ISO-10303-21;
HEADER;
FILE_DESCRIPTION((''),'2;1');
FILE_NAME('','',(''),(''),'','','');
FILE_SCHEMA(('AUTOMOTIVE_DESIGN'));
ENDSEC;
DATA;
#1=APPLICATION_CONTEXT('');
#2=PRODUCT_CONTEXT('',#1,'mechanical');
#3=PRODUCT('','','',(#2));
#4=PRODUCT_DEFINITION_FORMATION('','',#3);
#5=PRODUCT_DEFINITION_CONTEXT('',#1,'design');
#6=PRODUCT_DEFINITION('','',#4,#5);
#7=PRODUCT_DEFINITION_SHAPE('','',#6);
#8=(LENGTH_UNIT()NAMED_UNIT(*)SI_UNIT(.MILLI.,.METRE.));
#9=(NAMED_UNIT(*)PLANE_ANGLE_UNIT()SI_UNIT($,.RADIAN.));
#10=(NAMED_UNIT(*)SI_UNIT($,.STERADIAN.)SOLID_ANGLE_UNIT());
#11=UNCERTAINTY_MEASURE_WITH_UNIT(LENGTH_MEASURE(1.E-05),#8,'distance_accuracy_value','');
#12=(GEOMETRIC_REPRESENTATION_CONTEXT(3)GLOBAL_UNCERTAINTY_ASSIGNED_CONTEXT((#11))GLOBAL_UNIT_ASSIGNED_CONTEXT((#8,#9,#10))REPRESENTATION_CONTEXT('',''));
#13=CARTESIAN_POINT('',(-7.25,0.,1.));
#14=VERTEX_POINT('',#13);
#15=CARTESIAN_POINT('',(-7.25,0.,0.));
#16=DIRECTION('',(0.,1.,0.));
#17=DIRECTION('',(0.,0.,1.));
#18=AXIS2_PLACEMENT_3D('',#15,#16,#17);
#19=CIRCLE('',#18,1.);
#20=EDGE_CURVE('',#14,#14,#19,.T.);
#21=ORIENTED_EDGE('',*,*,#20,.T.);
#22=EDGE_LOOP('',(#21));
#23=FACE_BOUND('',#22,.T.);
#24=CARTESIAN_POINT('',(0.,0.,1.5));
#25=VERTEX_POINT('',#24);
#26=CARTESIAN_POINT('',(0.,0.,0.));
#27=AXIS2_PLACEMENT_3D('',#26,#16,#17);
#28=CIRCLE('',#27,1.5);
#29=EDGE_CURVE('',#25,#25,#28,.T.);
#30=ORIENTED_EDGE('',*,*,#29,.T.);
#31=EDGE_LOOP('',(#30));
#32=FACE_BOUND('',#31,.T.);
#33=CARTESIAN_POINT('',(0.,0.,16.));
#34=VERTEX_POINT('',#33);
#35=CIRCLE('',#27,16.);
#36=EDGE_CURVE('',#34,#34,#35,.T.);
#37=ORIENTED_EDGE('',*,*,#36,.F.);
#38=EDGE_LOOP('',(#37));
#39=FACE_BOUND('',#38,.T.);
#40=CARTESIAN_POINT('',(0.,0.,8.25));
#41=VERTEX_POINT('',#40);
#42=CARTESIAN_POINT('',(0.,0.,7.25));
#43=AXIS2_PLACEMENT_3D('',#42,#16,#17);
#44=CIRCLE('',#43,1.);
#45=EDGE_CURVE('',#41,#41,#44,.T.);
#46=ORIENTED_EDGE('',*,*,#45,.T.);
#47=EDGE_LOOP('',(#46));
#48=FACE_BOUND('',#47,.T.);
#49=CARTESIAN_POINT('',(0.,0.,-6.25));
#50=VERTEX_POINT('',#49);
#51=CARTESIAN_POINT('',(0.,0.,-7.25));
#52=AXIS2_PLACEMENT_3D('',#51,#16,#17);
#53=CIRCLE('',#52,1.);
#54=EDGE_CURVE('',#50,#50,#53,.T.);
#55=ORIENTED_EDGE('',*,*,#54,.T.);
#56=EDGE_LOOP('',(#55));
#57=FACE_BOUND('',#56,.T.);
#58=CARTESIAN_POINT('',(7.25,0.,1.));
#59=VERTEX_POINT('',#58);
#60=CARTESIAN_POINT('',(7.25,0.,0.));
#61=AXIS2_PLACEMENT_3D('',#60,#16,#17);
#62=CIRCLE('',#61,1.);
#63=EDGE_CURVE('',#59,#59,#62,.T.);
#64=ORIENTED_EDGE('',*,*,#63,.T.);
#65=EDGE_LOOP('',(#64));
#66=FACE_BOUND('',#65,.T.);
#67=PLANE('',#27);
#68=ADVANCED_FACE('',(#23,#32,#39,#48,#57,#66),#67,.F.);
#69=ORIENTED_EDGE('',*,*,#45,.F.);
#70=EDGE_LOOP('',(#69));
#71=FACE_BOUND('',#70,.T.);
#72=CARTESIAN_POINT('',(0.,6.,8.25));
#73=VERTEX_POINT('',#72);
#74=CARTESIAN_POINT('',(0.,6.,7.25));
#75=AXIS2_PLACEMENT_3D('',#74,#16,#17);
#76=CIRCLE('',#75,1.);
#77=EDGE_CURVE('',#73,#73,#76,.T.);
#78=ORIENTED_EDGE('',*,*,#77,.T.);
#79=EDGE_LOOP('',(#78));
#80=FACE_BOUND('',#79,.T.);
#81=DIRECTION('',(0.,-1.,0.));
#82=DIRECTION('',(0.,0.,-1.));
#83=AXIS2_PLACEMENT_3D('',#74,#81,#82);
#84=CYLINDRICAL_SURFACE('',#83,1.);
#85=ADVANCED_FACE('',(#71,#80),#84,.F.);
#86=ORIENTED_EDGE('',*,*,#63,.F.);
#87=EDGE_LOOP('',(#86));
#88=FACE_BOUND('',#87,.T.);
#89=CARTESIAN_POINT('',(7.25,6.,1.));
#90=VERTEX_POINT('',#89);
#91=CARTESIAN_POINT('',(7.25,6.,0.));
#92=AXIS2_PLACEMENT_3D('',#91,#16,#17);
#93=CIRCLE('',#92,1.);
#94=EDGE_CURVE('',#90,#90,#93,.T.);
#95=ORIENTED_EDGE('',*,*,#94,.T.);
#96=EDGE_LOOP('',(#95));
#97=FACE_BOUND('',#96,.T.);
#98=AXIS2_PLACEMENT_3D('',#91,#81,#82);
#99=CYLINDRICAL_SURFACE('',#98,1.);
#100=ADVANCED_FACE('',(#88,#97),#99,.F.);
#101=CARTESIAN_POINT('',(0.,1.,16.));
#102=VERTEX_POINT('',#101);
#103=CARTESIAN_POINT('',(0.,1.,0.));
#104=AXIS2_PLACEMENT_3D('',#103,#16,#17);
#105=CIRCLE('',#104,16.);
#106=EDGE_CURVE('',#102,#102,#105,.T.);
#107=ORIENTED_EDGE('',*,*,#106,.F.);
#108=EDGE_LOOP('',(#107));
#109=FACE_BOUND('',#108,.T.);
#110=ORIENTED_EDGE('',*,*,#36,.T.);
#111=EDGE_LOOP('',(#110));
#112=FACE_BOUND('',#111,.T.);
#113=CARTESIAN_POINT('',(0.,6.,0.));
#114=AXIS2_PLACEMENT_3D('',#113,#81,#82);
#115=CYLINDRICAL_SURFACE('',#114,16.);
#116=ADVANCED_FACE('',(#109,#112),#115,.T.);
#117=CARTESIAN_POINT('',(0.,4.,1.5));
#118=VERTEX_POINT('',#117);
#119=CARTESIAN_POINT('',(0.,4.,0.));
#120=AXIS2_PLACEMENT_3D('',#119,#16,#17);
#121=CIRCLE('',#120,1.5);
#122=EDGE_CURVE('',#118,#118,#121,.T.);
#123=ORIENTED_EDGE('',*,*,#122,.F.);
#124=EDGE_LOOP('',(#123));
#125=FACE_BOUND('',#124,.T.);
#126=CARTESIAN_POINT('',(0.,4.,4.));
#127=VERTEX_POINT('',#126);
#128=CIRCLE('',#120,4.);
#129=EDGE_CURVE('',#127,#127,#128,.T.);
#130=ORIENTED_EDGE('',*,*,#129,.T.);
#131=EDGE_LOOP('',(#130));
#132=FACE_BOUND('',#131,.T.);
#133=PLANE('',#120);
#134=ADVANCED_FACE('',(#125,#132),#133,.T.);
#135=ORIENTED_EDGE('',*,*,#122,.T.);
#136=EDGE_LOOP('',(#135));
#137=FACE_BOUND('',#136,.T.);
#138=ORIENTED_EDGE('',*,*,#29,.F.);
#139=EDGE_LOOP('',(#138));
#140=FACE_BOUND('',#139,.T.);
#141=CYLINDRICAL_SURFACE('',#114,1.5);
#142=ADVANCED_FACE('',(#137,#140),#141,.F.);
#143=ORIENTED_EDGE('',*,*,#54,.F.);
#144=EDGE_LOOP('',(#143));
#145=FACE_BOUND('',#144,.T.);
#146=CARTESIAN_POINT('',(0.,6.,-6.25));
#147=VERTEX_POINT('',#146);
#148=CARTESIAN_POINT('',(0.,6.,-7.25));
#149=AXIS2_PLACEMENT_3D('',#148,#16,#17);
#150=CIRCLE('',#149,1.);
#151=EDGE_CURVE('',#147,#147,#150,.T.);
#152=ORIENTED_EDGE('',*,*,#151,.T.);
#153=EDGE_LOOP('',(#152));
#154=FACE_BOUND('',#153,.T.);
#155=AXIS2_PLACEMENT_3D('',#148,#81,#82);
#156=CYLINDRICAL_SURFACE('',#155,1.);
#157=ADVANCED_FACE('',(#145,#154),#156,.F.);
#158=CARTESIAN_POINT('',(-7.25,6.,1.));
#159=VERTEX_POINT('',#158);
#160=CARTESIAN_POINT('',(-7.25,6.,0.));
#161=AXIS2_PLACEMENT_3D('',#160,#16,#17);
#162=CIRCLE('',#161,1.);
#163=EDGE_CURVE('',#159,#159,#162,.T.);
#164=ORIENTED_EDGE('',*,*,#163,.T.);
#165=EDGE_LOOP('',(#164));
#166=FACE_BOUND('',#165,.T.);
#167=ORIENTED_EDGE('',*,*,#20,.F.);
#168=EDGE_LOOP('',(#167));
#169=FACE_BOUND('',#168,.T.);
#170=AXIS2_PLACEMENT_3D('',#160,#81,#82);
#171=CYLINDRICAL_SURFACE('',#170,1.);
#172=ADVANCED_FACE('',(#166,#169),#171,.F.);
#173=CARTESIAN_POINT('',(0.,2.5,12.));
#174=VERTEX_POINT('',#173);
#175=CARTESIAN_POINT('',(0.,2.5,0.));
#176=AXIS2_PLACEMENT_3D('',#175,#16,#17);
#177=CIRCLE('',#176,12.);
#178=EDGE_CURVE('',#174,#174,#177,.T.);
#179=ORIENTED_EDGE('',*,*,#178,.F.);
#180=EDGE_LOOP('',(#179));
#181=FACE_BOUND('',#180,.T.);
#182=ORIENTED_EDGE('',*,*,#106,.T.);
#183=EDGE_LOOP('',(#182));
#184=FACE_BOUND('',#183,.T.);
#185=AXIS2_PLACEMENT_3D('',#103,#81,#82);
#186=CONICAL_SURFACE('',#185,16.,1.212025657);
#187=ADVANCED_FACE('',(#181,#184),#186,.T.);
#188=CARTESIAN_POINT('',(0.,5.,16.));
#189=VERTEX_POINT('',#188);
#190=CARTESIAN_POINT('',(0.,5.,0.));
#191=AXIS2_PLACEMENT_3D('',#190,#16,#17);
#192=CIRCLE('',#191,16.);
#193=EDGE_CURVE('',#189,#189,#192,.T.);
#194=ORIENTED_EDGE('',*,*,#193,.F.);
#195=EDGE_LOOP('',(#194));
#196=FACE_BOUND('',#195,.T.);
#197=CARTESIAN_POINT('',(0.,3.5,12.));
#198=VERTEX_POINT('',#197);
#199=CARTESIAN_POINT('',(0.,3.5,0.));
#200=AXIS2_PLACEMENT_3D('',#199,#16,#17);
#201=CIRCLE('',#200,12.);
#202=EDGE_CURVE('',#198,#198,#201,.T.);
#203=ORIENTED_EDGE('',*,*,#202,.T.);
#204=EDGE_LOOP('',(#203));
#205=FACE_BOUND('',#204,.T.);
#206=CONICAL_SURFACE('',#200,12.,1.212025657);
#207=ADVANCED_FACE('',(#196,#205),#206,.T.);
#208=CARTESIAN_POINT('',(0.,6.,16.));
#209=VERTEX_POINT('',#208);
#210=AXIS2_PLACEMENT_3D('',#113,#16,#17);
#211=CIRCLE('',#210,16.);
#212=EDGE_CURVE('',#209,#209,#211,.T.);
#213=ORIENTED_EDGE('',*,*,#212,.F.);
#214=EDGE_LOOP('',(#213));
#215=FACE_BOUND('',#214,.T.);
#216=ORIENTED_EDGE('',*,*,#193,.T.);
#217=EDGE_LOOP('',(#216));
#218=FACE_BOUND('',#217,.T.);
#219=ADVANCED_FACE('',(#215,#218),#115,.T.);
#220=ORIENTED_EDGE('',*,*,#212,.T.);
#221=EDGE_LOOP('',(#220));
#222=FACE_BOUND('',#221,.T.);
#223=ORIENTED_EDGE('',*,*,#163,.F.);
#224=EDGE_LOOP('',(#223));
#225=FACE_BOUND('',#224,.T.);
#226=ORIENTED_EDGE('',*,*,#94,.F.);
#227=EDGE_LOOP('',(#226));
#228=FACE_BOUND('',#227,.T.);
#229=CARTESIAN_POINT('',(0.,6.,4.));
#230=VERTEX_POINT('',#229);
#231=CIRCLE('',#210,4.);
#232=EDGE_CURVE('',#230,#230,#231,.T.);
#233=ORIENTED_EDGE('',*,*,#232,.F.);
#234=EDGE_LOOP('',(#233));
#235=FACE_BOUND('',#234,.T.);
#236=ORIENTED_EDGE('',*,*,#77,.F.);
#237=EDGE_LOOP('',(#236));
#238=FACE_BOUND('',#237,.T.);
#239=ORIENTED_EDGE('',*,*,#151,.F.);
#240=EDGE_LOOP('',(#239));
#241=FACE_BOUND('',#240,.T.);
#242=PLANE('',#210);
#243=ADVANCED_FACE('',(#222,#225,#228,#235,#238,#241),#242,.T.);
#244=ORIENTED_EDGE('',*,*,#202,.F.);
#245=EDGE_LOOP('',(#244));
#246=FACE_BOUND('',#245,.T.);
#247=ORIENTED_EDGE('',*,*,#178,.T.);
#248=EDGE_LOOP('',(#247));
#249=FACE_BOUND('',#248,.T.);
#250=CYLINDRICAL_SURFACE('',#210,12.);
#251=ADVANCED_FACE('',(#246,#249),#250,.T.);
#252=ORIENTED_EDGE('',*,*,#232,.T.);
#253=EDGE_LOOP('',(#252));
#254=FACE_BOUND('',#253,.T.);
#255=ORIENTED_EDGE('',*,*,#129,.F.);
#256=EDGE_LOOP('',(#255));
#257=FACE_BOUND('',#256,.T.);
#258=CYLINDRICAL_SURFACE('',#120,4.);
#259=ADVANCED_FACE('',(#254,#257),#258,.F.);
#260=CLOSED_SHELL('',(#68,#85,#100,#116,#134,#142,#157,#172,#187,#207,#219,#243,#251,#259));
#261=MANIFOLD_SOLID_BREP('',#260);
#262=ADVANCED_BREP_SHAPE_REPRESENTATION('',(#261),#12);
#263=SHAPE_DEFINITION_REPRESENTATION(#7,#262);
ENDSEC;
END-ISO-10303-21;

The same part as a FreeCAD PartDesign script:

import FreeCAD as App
import Part
import Sketcher
from FreeCAD import Vector


def add_polygon(sketch, points):
    """Adds a closed chain of lines whose ends are joined by coincident constraints."""
    first, n = sketch.GeometryCount, len(points)
    for a, b in zip(points, points[1:] + points[:1]):
        sketch.addGeometry(Part.LineSegment(App.Vector(*a, 0), App.Vector(*b, 0)), False)
    for i in range(n):
        sketch.addConstraint(Sketcher.Constraint("Coincident", first + i, 2, first + (i + 1) % n, 1))

doc = App.newDocument("Part")
params = doc.addObject("Spreadsheet::Sheet", "Params")
for row, (alias, value) in enumerate([
    ("sketch1_diameter", "32 mm"),
    ("sketch1_diameter2", "2 mm"),
    ("sketch1_diameter3", "3 mm"),
    ("pad1_length", "6 mm"),
    ("sketch2_diameter", "8 mm"),
    ("pocket1_length", "2 mm"),
    ("sketch3_width", "4 mm"),
    ("sketch3_width2", "1 mm"),
    ("groove_angle", "360 deg"),
], start=1):
    params.set(f"A{row}", alias)
    params.set(f"B{row}", "=" + value)
    params.setAlias(f"B{row}", alias)

body = doc.addObject("PartDesign::Body", "Body")

sketch1 = body.newObject("Sketcher::SketchObject", "Sketch")
sketch1.AttachmentSupport = (doc.getObject("XZ_Plane"), [""])
sketch1.MapMode = "FlatFace"
sketch1.addGeometry([
    Part.Circle(Vector(0, 0, 0), Vector(0, 0, 1), 16),
    Part.Circle(Vector(0, 7.25, 0), Vector(0, 0, 1), 1),
    Part.Circle(Vector(-7.25, 0, 0), Vector(0, 0, 1), 1),
    Part.Circle(Vector(0, 0, 0), Vector(0, 0, 1), 1.5),
    Part.Circle(Vector(7.25, 0, 0), Vector(0, 0, 1), 1),
    Part.Circle(Vector(0, -7.25, 0), Vector(0, 0, 1), 1),
], False)
sketch1.addConstraint([
    Sketcher.Constraint("Coincident", 0, 3, -1, 1),
    Sketcher.Constraint("Coincident", 3, 3, -1, 1),
    Sketcher.Constraint("Equal", 1, 2),
    Sketcher.Constraint("Equal", 2, 4),
    Sketcher.Constraint("Equal", 4, 5),
    Sketcher.Constraint("Symmetric", 2, 3, 4, 3, -1, 1),
    Sketcher.Constraint("Symmetric", 1, 3, 5, 3, -1, 1),
    Sketcher.Constraint("PointOnObject", 1, 3, -2),
    Sketcher.Constraint("PointOnObject", 2, 3, -1),
    Sketcher.Constraint("Diameter", 0, 32.0),
    Sketcher.Constraint("Diameter", 1, 2.0),
    Sketcher.Constraint("Diameter", 3, 3.0),
    Sketcher.Constraint("DistanceX", 2, 3, 4, 3, 14.5),
    Sketcher.Constraint("DistanceY", 5, 3, 1, 3, 14.5),
])
sketch1.setExpression("Constraints[9]", "Params.sketch1_diameter")
sketch1.setExpression("Constraints[10]", "Params.sketch1_diameter2")
sketch1.setExpression("Constraints[11]", "Params.sketch1_diameter3")
pad1 = body.newObject("PartDesign::Pad", "Pad")
pad1.Profile = sketch1
pad1.setExpression("Length", "Params.pad1_length")
pad1.Reversed = True

sketch2 = body.newObject("Sketcher::SketchObject", "Sketch001")
sketch2.AttachmentSupport = (doc.getObject("XZ_Plane"), [""])
sketch2.MapMode = "FlatFace"
sketch2.AttachmentOffset = App.Placement(Vector(0, 0, -6), App.Rotation())
sketch2.addGeometry(Part.Circle(Vector(0, 0, 0), Vector(0, 0, 1), 4), False)
sketch2.addConstraint([
    Sketcher.Constraint("Coincident", 0, 3, -1, 1),
    Sketcher.Constraint("Diameter", 0, 8.0),
])
sketch2.setExpression("Constraints[1]", "Params.sketch2_diameter")
pocket1 = body.newObject("PartDesign::Pocket", "Pocket")
pocket1.Profile = sketch2
pocket1.setExpression("Length", "Params.pocket1_length")
pocket1.Reversed = True

sketch3 = body.newObject("Sketcher::SketchObject", "Sketch002")
sketch3.AttachmentSupport = (doc.getObject("YZ_Plane"), [""])
sketch3.MapMode = "FlatFace"
add_polygon(sketch3, [(3.5, 12), (5, 16), (1, 16), (2.5, 12)])
sketch3.addConstraint([
    Sketcher.Constraint("Horizontal", 1),
    Sketcher.Constraint("Horizontal", 3),
    Sketcher.Constraint("Equal", 0, 2),
    Sketcher.Constraint("DistanceX", 1, 2, 1, 1, 4.0),
    Sketcher.Constraint("DistanceX", 3, 1, 3, 2, 1.0),
    Sketcher.Constraint("DistanceX", -1, 1, 0, 2, 5.0),
    Sketcher.Constraint("DistanceY", -1, 1, 0, 2, 16.0),
    Sketcher.Constraint("DistanceY", -1, 1, 2, 2, 12.0),
])
sketch3.setExpression("Constraints[7]", "Params.sketch3_width")
sketch3.setExpression("Constraints[8]", "Params.sketch3_width2")
groove = body.newObject("PartDesign::Groove", "Groove")
groove.Profile = sketch3
groove.ReferenceAxis = (sketch3, ["H_Axis"])
groove.setExpression("Angle", "Params.groove_angle")

doc.recompute()
